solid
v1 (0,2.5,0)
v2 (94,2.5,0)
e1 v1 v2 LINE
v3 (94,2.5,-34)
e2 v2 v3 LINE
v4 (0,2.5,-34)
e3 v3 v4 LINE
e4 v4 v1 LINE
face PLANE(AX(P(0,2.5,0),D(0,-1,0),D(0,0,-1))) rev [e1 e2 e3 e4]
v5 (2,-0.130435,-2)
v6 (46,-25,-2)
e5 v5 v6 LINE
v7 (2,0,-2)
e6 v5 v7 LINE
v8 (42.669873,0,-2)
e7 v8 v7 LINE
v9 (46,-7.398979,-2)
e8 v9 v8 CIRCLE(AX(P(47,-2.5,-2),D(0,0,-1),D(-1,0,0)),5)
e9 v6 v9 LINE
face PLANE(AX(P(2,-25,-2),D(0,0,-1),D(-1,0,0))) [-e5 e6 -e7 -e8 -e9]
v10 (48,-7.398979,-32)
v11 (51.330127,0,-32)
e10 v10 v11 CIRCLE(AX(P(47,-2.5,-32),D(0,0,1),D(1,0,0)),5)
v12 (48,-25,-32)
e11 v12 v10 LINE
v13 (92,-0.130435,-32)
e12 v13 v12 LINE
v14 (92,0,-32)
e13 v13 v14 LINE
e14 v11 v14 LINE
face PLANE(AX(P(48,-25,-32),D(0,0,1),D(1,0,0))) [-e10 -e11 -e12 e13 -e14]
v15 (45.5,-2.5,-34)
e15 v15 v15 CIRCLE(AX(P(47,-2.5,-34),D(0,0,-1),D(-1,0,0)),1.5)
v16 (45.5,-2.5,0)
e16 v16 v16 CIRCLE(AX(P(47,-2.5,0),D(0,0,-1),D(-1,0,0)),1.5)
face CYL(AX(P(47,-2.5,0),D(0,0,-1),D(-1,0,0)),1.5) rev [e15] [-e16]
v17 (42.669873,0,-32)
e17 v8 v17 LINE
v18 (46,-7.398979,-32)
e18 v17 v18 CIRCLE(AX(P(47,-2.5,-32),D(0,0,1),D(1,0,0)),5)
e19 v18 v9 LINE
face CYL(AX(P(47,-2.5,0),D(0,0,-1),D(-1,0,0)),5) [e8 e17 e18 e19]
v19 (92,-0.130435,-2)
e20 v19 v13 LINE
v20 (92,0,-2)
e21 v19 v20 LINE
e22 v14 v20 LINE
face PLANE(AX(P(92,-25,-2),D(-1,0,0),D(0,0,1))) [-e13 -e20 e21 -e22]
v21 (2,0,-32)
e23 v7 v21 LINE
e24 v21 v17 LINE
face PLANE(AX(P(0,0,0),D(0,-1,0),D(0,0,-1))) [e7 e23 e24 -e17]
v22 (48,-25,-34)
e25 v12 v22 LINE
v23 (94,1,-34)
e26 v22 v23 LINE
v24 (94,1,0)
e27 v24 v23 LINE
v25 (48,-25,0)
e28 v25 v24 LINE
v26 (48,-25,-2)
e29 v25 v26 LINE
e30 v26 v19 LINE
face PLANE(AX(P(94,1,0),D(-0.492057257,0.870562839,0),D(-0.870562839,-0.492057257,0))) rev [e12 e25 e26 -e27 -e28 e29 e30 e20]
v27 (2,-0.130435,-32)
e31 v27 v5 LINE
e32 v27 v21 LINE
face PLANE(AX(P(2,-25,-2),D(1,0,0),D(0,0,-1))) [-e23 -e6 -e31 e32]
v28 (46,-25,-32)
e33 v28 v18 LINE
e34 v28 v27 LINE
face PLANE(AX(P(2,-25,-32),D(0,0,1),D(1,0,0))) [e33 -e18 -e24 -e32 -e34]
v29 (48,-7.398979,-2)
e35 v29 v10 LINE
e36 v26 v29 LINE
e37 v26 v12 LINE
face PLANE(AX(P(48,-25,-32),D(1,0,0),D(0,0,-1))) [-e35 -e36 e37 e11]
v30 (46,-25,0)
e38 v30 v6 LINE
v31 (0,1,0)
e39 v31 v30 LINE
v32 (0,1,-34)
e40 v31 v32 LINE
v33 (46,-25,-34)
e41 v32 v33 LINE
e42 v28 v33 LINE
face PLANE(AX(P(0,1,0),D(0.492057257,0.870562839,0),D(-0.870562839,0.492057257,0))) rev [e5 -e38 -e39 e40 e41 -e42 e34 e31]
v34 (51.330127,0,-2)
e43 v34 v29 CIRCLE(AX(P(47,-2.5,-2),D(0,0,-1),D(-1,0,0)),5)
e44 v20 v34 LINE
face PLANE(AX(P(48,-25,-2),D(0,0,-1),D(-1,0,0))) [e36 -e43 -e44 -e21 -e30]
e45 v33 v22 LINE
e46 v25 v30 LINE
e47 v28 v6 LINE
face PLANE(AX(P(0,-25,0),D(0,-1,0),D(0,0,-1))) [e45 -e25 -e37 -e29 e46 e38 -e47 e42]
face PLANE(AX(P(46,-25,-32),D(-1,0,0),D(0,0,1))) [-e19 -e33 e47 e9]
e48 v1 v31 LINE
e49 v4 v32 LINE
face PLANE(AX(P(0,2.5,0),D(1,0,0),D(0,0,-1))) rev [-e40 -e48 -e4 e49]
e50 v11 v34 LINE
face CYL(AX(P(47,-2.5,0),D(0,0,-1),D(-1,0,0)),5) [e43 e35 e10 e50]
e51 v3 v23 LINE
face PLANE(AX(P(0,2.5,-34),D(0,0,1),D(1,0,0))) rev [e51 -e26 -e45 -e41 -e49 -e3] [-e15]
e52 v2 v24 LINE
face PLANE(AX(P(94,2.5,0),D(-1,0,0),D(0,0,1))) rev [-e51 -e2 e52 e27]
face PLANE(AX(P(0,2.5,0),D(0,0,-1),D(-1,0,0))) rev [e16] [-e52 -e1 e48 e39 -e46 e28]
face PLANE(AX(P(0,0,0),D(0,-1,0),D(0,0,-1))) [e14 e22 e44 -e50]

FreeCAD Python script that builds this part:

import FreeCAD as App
import Part
import Sketcher
Q = App.Units.Quantity

doc = App.newDocument("Part")
body = doc.addObject("PartDesign::Body", "Body")

# Sketch on XZ plane
sketch1 = doc.addObject("Sketcher::SketchObject", "Sketch")
body.addObject(sketch1)
sketch1.AttachmentSupport = (doc.XZ_Plane, [""])
sketch1.MapMode = "FlatFace"
sketch1.addGeometry([
    Part.LineSegment(App.Vector(0, -34, 0), App.Vector(0, 0, 0)),
    Part.LineSegment(App.Vector(0, 0, 0), App.Vector(94, 0, 0)),
    Part.LineSegment(App.Vector(94, 0, 0), App.Vector(94, -34, 0)),
    Part.LineSegment(App.Vector(94, -34, 0), App.Vector(0, -34, 0)),
], False)
sketch1.addConstraint([
    Sketcher.Constraint("Coincident", 0, 2, 1, 1),
    Sketcher.Constraint("Coincident", 1, 2, 2, 1),
    Sketcher.Constraint("Coincident", 2, 2, 3, 1),
    Sketcher.Constraint("Coincident", 3, 2, 0, 1),
    Sketcher.Constraint("Vertical", 0),
    Sketcher.Constraint("Horizontal", 1),
    Sketcher.Constraint("Vertical", 2),
    Sketcher.Constraint("Horizontal", 3),
    Sketcher.Constraint("Coincident", 0, 2, -1, 1),
    Sketcher.Constraint("DistanceX", 1, 1, 1, 2, Q("94 mm")),
    Sketcher.Constraint("DistanceY", 0, 1, 0, 2, Q("34 mm")),
])
pad1 = doc.addObject("PartDesign::Pad", "Pad")
body.addObject(pad1)
pad1.Profile = sketch1
pad1.Length = 2.5
pad1.Reversed = True

# Sketch on XZ plane
sketch2 = doc.addObject("Sketcher::SketchObject", "Sketch001")
body.addObject(sketch2)
sketch2.AttachmentSupport = (doc.XZ_Plane, [""])
sketch2.MapMode = "FlatFace"
sketch2.addGeometry([
    Part.LineSegment(App.Vector(94, -34, 0), App.Vector(94, 0, 0)),  # 0
    Part.LineSegment(App.Vector(94, 0, 0), App.Vector(0, 0, 0)),  # 1
    Part.LineSegment(App.Vector(0, 0, 0), App.Vector(0, -34, 0)),  # 2
    Part.LineSegment(App.Vector(0, -34, 0), App.Vector(94, -34, 0)),  # 3
    Part.LineSegment(App.Vector(48, -2, 0), App.Vector(92, -2, 0)),  # 4
    Part.LineSegment(App.Vector(92, -2, 0), App.Vector(92, -32, 0)),  # 5
    Part.LineSegment(App.Vector(92, -32, 0), App.Vector(48, -32, 0)),  # 6
    Part.LineSegment(App.Vector(48, -32, 0), App.Vector(48, -2, 0)),  # 7
    Part.LineSegment(App.Vector(2, -2, 0), App.Vector(46, -2, 0)),  # 8
    Part.LineSegment(App.Vector(46, -2, 0), App.Vector(46, -32, 0)),  # 9
    Part.LineSegment(App.Vector(46, -32, 0), App.Vector(2, -32, 0)),  # 10
    Part.LineSegment(App.Vector(2, -32, 0), App.Vector(2, -2, 0)),  # 11
], False)
sketch2.addConstraint([
    Sketcher.Constraint("Coincident", 0, 2, 1, 1),
    Sketcher.Constraint("Coincident", 1, 2, 2, 1),
    Sketcher.Constraint("Coincident", 2, 2, 3, 1),
    Sketcher.Constraint("Coincident", 3, 2, 0, 1),
    Sketcher.Constraint("Coincident", 4, 2, 5, 1),
    Sketcher.Constraint("Coincident", 5, 2, 6, 1),
    Sketcher.Constraint("Coincident", 6, 2, 7, 1),
    Sketcher.Constraint("Coincident", 7, 2, 4, 1),
    Sketcher.Constraint("Coincident", 8, 2, 9, 1),
    Sketcher.Constraint("Coincident", 9, 2, 10, 1),
    Sketcher.Constraint("Coincident", 10, 2, 11, 1),
    Sketcher.Constraint("Coincident", 11, 2, 8, 1),
    Sketcher.Constraint("Vertical", 0),
    Sketcher.Constraint("Horizontal", 1),
    Sketcher.Constraint("Vertical", 2),
    Sketcher.Constraint("Horizontal", 3),
    Sketcher.Constraint("Horizontal", 4),
    Sketcher.Constraint("Vertical", 5),
    Sketcher.Constraint("Horizontal", 6),
    Sketcher.Constraint("Vertical", 7),
    Sketcher.Constraint("Horizontal", 8),
    Sketcher.Constraint("Vertical", 9),
    Sketcher.Constraint("Horizontal", 10),
    Sketcher.Constraint("Vertical", 11),
    Sketcher.Constraint("Coincident", 1, 2, -1, 1),
    Sketcher.Constraint("Horizontal", 7, 2, 8, 2),
    Sketcher.Constraint("Horizontal", 6, 2, 9, 2),
    Sketcher.Constraint("Equal", 6, 8),
    Sketcher.Constraint("DistanceX", 1, 2, 1, 1, Q("94 mm")),
    Sketcher.Constraint("DistanceX", 4, 1, 4, 2, Q("44 mm")),
    Sketcher.Constraint("DistanceY", 0, 1, 0, 2, Q("34 mm")),
    Sketcher.Constraint("DistanceY", 5, 2, 5, 1, Q("30 mm")),
    Sketcher.Constraint("DistanceX", -1, 1, 4, 2, Q("92 mm")),
    Sketcher.Constraint("DistanceY", 4, 2, -1, 1, Q("2 mm")),
    Sketcher.Constraint("DistanceX", -1, 1, 8, 2, Q("46 mm")),
])
pad2 = doc.addObject("PartDesign::Pad", "Pad001")
body.addObject(pad2)
pad2.Profile = sketch2
pad2.Length = 25

# Sketch on XY plane
sketch3 = doc.addObject("Sketcher::SketchObject", "Sketch002")
body.addObject(sketch3)
sketch3.AttachmentSupport = (doc.XY_Plane, [""])
sketch3.MapMode = "FlatFace"
sketch3.AttachmentOffset = App.Placement(App.Vector(0, 0, -34), App.Rotation())
sketch3.addGeometry([
    Part.LineSegment(App.Vector(0, -25, 0), App.Vector(0, 1, 0)),  # 0
    Part.LineSegment(App.Vector(0, 1, 0), App.Vector(46, -25, 0)),  # 1
    Part.LineSegment(App.Vector(46, -25, 0), App.Vector(0, -25, 0)),  # 2
    Part.LineSegment(App.Vector(94, 1, 0), App.Vector(94, -25, 0)),  # 3
    Part.LineSegment(App.Vector(94, -25, 0), App.Vector(48, -25, 0)),  # 4
    Part.LineSegment(App.Vector(48, -25, 0), App.Vector(94, 1, 0)),  # 5
], False)
sketch3.addConstraint([
    Sketcher.Constraint("Coincident", 0, 2, 1, 1),
    Sketcher.Constraint("Coincident", 1, 2, 2, 1),
    Sketcher.Constraint("Coincident", 2, 2, 0, 1),
    Sketcher.Constraint("Coincident", 3, 2, 4, 1),
    Sketcher.Constraint("Coincident", 4, 2, 5, 1),
    Sketcher.Constraint("Coincident", 5, 2, 3, 1),
    Sketcher.Constraint("Vertical", 0),
    Sketcher.Constraint("Horizontal", 2),
    Sketcher.Constraint("Vertical", 3),
    Sketcher.Constraint("Horizontal", 4),
    Sketcher.Constraint("PointOnObject", 0, 2, -2),
    Sketcher.Constraint("Horizontal", 2, 2, 3, 2),
    Sketcher.Constraint("Horizontal", 0, 2, 5, 2),
    Sketcher.Constraint("Equal", 2, 4),
    Sketcher.Constraint("DistanceX", 2, 2, 2, 1, Q("46 mm")),
    Sketcher.Constraint("DistanceY", 0, 1, 0, 2, Q("26 mm")),
    Sketcher.Constraint("DistanceY", -1, 1, 0, 2, Q("1 mm")),
    Sketcher.Constraint("DistanceX", -1, 1, 3, 2, Q("94 mm")),
])
pocket1 = doc.addObject("PartDesign::Pocket", "Pocket")
body.addObject(pocket1)
pocket1.Profile = sketch3
pocket1.Type = "ThroughAll"
pocket1.Reversed = True

# Sketch on XY plane
sketch4 = doc.addObject("Sketcher::SketchObject", "Sketch003")
body.addObject(sketch4)
sketch4.AttachmentSupport = (doc.XY_Plane, [""])
sketch4.MapMode = "FlatFace"
sketch4.AttachmentOffset = App.Placement(App.Vector(0, 0, -34), App.Rotation())
sketch4.addGeometry(Part.Circle(App.Vector(47, -2.5, 0), App.Vector(0, 0, 1), 5), False)
sketch4.addConstraint([
    Sketcher.Constraint("Diameter", 0, Q("10 mm")),
    Sketcher.Constraint("DistanceX", -1, 1, 0, 3, Q("47 mm")),
    Sketcher.Constraint("DistanceY", 0, 3, -1, 1, Q("2.5 mm")),
])
pad3 = doc.addObject("PartDesign::Pad", "Pad002")
body.addObject(pad3)
pad3.Profile = sketch4
pad3.Length = 34

# Sketch on XY plane
sketch5 = doc.addObject("Sketcher::SketchObject", "Sketch004")
body.addObject(sketch5)
sketch5.AttachmentSupport = (doc.XY_Plane, [""])
sketch5.MapMode = "FlatFace"
sketch5.AttachmentOffset = App.Placement(App.Vector(0, 0, -34), App.Rotation())
sketch5.addGeometry(Part.Circle(App.Vector(47, -2.5, 0), App.Vector(0, 0, 1), 1.5), False)
sketch5.addConstraint([
    Sketcher.Constraint("Diameter", 0, Q("3 mm")),
    Sketcher.Constraint("DistanceX", -1, 1, 0, 3, Q("47 mm")),
    Sketcher.Constraint("DistanceY", 0, 3, -1, 1, Q("2.5 mm")),
])
pocket2 = doc.addObject("PartDesign::Pocket", "Pocket001")
body.addObject(pocket2)
pocket2.Profile = sketch5
pocket2.Type = "ThroughAll"
pocket2.Reversed = True

doc.recompute()
